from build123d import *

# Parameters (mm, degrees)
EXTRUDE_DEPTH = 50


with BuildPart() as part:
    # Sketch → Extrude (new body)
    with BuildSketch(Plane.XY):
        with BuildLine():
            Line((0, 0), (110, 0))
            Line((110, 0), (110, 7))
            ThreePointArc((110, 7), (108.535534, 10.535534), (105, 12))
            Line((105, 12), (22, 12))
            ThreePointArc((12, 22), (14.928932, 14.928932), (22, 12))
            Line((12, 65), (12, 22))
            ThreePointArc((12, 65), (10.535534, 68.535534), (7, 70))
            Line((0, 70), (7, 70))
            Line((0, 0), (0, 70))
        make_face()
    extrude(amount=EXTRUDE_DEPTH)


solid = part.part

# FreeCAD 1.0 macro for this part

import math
import FreeCAD as App
import Part
import Sketcher
from FreeCAD import Vector
Q = App.Units.Quantity

doc = App.newDocument("Part")
body = doc.addObject("PartDesign::Body", "Body")

# Sketch on XY plane
sketch1 = doc.addObject("Sketcher::SketchObject", "Sketch")
body.addObject(sketch1)
sketch1.AttachmentSupport = (doc.XY_Plane, [""])
sketch1.MapMode = "FlatFace"
sketch1.addGeometry([
    Part.LineSegment(Vector(0, 0, 0), Vector(110, 0, 0)),  # 0
    Part.LineSegment(Vector(110, 0, 0), Vector(110, 7, 0)),  # 1
    Part.ArcOfCircle(Part.Circle(Vector(105, 7, 0), Vector(0, 0, 1), 5), math.radians(0), math.radians(90)),  # 2
    Part.LineSegment(Vector(105, 12, 0), Vector(22, 12, 0)),  # 3
    Part.ArcOfCircle(Part.Circle(Vector(22, 22, 0), Vector(0, 0, 1), 10), math.radians(180), math.radians(270)),  # 4
    Part.LineSegment(Vector(12, 22, 0), Vector(12, 65, 0)),  # 5
    Part.ArcOfCircle(Part.Circle(Vector(7, 65, 0), Vector(0, 0, 1), 5), math.radians(0), math.radians(90)),  # 6
    Part.LineSegment(Vector(7, 70, 0), Vector(0, 70, 0)),  # 7
    Part.LineSegment(Vector(0, 70, 0), Vector(0, 0, 0)),  # 8
], False)
sketch1.addConstraint([
    Sketcher.Constraint("Coincident", 0, 2, 1, 1),
    Sketcher.Constraint("Tangent", 1, 2, 2, 1),
    Sketcher.Constraint("Tangent", 2, 2, 3, 1),
    Sketcher.Constraint("Tangent", 3, 2, 4, 2),
    Sketcher.Constraint("Tangent", 4, 1, 5, 1),
    Sketcher.Constraint("Tangent", 5, 2, 6, 1),
    Sketcher.Constraint("Tangent", 6, 2, 7, 1),
    Sketcher.Constraint("Coincident", 7, 2, 8, 1),
    Sketcher.Constraint("Coincident", 8, 2, 0, 1),
    Sketcher.Constraint("Horizontal", 0),
    Sketcher.Constraint("Vertical", 1),
    Sketcher.Constraint("Horizontal", 3),
    Sketcher.Constraint("Vertical", 5),
    Sketcher.Constraint("Horizontal", 7),
    Sketcher.Constraint("Vertical", 8),
    Sketcher.Constraint("Coincident", 8, 2, -1, 1),
    Sketcher.Constraint("Equal", 2, 6),
    Sketcher.Constraint("Equal", 7, 1),
    Sketcher.Constraint("Radius", 2, Q("5 mm")),
    Sketcher.Constraint("Radius", 4, Q("9.999999 mm")),
    Sketcher.Constraint("DistanceX", 0, 1, 0, 2, Q("110 mm")),
    Sketcher.Constraint("DistanceX", 3, 2, 3, 1, Q("83 mm")),
    Sketcher.Constraint("DistanceY", 5, 1, 5, 2, Q("43 mm")),
])
pad1 = doc.addObject("PartDesign::Pad", "Pad")
body.addObject(pad1)
pad1.Profile = sketch1
pad1.Length = 50

doc.recompute()
